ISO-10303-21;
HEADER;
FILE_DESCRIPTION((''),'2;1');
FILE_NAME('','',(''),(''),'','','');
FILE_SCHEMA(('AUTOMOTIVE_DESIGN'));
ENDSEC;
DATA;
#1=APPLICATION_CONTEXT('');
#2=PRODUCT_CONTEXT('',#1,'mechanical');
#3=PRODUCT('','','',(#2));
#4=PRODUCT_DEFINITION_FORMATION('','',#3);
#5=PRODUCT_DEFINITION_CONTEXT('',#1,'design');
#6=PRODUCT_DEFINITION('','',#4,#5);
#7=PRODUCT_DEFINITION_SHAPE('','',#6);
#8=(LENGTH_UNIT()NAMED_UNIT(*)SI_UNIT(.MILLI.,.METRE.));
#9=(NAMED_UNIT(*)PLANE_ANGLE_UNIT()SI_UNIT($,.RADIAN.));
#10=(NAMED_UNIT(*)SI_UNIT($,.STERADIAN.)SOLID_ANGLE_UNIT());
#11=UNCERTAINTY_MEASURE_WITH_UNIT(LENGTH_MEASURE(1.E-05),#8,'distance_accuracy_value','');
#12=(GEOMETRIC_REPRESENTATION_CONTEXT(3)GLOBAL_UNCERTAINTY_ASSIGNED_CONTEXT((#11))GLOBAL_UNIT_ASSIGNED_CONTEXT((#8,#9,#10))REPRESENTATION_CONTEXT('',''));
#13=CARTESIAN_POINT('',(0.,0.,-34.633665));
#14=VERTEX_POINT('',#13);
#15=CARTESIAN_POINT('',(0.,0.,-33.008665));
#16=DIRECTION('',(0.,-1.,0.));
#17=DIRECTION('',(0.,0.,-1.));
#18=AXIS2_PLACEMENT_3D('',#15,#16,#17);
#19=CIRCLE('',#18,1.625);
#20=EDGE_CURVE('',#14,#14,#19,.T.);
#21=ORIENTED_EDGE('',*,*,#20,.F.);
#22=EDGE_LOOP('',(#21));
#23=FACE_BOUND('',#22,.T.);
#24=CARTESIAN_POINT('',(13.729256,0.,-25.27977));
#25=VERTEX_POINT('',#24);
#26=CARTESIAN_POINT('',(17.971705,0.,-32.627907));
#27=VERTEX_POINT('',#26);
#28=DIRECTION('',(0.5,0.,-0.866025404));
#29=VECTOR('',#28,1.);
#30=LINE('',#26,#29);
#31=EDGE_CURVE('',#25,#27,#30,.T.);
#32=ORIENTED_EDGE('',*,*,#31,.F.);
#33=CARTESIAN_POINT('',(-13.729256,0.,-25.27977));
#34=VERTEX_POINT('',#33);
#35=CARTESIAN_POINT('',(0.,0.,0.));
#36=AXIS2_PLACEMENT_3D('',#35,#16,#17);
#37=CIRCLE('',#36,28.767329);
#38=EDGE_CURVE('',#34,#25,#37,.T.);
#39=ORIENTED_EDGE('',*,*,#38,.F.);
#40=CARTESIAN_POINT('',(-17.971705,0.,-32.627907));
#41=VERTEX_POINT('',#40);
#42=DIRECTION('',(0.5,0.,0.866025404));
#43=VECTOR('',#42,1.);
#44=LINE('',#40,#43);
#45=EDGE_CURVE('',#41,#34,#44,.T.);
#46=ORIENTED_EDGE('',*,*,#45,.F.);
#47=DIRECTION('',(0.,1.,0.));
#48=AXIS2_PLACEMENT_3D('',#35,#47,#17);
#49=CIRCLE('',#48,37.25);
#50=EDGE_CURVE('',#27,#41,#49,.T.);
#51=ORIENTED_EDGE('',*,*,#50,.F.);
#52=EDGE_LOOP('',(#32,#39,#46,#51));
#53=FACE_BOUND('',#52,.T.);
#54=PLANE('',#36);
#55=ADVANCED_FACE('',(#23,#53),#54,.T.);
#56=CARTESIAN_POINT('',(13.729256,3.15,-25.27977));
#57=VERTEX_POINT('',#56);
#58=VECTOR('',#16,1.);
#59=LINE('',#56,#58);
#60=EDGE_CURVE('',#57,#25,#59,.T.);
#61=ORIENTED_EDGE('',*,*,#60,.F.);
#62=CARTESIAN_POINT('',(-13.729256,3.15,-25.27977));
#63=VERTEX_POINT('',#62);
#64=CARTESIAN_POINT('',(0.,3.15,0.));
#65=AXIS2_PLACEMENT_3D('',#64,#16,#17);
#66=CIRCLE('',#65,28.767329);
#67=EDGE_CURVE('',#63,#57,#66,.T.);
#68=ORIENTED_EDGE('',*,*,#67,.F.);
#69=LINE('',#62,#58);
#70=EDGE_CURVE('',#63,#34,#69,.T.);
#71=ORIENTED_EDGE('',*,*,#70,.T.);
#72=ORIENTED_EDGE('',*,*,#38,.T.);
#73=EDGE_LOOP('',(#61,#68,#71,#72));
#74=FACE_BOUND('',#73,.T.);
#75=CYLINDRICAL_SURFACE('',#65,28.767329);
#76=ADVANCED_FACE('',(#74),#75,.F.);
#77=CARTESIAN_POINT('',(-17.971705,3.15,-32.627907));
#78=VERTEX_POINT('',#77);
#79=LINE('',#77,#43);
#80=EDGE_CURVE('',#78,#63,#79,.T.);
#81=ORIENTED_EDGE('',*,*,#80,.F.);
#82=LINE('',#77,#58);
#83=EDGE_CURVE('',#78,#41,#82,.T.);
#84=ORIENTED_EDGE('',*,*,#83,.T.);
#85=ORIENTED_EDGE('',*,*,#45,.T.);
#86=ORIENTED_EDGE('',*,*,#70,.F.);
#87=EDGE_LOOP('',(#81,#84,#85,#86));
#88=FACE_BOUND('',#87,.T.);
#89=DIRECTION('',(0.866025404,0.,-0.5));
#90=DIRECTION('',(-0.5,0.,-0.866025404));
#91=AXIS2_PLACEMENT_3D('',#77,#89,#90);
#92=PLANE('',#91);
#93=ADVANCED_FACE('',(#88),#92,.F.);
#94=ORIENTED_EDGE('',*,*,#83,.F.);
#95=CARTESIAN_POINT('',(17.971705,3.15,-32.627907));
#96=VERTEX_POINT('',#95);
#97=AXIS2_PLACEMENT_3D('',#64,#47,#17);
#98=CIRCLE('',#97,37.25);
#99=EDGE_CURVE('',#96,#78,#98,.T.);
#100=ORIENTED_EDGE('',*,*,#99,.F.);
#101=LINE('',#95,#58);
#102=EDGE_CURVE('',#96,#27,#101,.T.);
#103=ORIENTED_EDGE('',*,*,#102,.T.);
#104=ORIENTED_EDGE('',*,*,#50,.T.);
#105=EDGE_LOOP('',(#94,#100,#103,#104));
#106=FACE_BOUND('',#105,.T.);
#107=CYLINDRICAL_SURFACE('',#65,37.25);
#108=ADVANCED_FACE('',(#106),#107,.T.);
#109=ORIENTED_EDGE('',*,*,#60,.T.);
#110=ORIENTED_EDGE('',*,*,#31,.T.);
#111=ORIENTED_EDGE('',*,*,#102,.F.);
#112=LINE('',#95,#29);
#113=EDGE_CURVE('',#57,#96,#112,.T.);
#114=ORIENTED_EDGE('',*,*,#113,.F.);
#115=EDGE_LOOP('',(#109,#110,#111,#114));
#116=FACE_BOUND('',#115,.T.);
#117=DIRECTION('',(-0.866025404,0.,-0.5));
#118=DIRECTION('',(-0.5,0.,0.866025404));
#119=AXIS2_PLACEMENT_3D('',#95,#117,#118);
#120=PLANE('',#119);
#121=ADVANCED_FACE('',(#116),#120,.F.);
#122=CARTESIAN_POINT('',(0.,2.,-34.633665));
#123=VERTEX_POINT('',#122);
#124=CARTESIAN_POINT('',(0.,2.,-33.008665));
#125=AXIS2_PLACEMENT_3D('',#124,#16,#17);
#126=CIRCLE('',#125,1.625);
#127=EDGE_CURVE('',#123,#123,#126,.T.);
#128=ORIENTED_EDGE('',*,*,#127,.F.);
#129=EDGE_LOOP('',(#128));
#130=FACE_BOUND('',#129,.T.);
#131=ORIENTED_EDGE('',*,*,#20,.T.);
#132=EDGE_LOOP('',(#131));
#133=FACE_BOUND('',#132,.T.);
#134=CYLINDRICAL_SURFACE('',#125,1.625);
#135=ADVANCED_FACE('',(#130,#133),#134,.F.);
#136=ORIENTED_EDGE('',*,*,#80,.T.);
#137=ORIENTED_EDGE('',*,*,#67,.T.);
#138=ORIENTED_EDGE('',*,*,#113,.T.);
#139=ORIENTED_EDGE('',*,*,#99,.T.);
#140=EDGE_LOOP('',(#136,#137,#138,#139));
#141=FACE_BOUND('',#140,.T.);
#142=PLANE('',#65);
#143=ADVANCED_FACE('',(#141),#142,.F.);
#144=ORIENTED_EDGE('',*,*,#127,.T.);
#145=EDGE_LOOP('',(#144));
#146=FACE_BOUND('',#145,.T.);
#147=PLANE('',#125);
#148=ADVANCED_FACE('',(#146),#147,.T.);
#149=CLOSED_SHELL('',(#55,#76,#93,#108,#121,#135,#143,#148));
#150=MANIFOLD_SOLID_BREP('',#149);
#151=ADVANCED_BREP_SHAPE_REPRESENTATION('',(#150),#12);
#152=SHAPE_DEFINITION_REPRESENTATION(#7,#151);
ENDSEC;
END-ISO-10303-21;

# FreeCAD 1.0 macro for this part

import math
import FreeCAD as App
import Part
import Sketcher

V = App.Vector
Q = App.Units.Quantity

doc = App.newDocument("Part")
body = doc.addObject("PartDesign::Body", "Body")

sketch1 = doc.addObject("Sketcher::SketchObject", "Sketch")
body.addObject(sketch1)
sketch1.AttachmentSupport = (doc.XZ_Plane, [""])
sketch1.MapMode = "FlatFace"
sketch1.addGeometry([
    Part.LineSegment(V(-18, -33, 0), V(-14, -25, 0)),
    Part.ArcOfCircle(Part.Circle(V(0, 0, 0), V(0, 0, 1), 29), math.radians(-119), math.radians(-61)),
    Part.LineSegment(V(14, -25, 0), V(18, -33, 0)),
    Part.ArcOfCircle(Part.Circle(V(0, 0, 0), V(0, 0, 1), 37), math.radians(-119), math.radians(-61)),
], False)
sketch1.addConstraint([
    Sketcher.Constraint("Coincident", 0, 2, 1, 1),
    Sketcher.Constraint("Coincident", 1, 2, 2, 1),
    Sketcher.Constraint("Coincident", 2, 2, 3, 2),
    Sketcher.Constraint("Coincident", 3, 1, 0, 1),
    Sketcher.Constraint("Coincident", 1, 3, -1, 1),
    Sketcher.Constraint("Coincident", 3, 3, -1, 1),
    Sketcher.Constraint("Horizontal", 0, 2, 1, 2),
    Sketcher.Constraint("Horizontal", 2, 2, 3, 1),
    Sketcher.Constraint("Angle", 0, Q("60 deg")),
    Sketcher.Constraint("Radius", 3, 37.25),
    Sketcher.Constraint("Radius", 1, 28.767329),
    Sketcher.Constraint("DistanceY", 0, 2, -1, 1, 25.27977),
])
pad1 = doc.addObject("PartDesign::Pad", "Pad")
body.addObject(pad1)
pad1.Profile = sketch1
pad1.Length = 3.15
pad1.Reversed = True

sketch2 = doc.addObject("Sketcher::SketchObject", "Sketch001")
body.addObject(sketch2)
sketch2.AttachmentSupport = (doc.XZ_Plane, [""])
sketch2.MapMode = "FlatFace"
sketch2.addGeometry(Part.Circle(V(0, -33, 0), V(0, 0, 1), 1.6), False)
sketch2.addConstraint([
    Sketcher.Constraint("PointOnObject", 0, 3, -2),
    Sketcher.Constraint("Diameter", 0, 3.25),
    Sketcher.Constraint("DistanceY", 0, 3, -1, 1, 33.008665),
])
pocket1 = doc.addObject("PartDesign::Pocket", "Pocket")
body.addObject(pocket1)
pocket1.Profile = sketch2
pocket1.Length = 2

doc.recompute()
